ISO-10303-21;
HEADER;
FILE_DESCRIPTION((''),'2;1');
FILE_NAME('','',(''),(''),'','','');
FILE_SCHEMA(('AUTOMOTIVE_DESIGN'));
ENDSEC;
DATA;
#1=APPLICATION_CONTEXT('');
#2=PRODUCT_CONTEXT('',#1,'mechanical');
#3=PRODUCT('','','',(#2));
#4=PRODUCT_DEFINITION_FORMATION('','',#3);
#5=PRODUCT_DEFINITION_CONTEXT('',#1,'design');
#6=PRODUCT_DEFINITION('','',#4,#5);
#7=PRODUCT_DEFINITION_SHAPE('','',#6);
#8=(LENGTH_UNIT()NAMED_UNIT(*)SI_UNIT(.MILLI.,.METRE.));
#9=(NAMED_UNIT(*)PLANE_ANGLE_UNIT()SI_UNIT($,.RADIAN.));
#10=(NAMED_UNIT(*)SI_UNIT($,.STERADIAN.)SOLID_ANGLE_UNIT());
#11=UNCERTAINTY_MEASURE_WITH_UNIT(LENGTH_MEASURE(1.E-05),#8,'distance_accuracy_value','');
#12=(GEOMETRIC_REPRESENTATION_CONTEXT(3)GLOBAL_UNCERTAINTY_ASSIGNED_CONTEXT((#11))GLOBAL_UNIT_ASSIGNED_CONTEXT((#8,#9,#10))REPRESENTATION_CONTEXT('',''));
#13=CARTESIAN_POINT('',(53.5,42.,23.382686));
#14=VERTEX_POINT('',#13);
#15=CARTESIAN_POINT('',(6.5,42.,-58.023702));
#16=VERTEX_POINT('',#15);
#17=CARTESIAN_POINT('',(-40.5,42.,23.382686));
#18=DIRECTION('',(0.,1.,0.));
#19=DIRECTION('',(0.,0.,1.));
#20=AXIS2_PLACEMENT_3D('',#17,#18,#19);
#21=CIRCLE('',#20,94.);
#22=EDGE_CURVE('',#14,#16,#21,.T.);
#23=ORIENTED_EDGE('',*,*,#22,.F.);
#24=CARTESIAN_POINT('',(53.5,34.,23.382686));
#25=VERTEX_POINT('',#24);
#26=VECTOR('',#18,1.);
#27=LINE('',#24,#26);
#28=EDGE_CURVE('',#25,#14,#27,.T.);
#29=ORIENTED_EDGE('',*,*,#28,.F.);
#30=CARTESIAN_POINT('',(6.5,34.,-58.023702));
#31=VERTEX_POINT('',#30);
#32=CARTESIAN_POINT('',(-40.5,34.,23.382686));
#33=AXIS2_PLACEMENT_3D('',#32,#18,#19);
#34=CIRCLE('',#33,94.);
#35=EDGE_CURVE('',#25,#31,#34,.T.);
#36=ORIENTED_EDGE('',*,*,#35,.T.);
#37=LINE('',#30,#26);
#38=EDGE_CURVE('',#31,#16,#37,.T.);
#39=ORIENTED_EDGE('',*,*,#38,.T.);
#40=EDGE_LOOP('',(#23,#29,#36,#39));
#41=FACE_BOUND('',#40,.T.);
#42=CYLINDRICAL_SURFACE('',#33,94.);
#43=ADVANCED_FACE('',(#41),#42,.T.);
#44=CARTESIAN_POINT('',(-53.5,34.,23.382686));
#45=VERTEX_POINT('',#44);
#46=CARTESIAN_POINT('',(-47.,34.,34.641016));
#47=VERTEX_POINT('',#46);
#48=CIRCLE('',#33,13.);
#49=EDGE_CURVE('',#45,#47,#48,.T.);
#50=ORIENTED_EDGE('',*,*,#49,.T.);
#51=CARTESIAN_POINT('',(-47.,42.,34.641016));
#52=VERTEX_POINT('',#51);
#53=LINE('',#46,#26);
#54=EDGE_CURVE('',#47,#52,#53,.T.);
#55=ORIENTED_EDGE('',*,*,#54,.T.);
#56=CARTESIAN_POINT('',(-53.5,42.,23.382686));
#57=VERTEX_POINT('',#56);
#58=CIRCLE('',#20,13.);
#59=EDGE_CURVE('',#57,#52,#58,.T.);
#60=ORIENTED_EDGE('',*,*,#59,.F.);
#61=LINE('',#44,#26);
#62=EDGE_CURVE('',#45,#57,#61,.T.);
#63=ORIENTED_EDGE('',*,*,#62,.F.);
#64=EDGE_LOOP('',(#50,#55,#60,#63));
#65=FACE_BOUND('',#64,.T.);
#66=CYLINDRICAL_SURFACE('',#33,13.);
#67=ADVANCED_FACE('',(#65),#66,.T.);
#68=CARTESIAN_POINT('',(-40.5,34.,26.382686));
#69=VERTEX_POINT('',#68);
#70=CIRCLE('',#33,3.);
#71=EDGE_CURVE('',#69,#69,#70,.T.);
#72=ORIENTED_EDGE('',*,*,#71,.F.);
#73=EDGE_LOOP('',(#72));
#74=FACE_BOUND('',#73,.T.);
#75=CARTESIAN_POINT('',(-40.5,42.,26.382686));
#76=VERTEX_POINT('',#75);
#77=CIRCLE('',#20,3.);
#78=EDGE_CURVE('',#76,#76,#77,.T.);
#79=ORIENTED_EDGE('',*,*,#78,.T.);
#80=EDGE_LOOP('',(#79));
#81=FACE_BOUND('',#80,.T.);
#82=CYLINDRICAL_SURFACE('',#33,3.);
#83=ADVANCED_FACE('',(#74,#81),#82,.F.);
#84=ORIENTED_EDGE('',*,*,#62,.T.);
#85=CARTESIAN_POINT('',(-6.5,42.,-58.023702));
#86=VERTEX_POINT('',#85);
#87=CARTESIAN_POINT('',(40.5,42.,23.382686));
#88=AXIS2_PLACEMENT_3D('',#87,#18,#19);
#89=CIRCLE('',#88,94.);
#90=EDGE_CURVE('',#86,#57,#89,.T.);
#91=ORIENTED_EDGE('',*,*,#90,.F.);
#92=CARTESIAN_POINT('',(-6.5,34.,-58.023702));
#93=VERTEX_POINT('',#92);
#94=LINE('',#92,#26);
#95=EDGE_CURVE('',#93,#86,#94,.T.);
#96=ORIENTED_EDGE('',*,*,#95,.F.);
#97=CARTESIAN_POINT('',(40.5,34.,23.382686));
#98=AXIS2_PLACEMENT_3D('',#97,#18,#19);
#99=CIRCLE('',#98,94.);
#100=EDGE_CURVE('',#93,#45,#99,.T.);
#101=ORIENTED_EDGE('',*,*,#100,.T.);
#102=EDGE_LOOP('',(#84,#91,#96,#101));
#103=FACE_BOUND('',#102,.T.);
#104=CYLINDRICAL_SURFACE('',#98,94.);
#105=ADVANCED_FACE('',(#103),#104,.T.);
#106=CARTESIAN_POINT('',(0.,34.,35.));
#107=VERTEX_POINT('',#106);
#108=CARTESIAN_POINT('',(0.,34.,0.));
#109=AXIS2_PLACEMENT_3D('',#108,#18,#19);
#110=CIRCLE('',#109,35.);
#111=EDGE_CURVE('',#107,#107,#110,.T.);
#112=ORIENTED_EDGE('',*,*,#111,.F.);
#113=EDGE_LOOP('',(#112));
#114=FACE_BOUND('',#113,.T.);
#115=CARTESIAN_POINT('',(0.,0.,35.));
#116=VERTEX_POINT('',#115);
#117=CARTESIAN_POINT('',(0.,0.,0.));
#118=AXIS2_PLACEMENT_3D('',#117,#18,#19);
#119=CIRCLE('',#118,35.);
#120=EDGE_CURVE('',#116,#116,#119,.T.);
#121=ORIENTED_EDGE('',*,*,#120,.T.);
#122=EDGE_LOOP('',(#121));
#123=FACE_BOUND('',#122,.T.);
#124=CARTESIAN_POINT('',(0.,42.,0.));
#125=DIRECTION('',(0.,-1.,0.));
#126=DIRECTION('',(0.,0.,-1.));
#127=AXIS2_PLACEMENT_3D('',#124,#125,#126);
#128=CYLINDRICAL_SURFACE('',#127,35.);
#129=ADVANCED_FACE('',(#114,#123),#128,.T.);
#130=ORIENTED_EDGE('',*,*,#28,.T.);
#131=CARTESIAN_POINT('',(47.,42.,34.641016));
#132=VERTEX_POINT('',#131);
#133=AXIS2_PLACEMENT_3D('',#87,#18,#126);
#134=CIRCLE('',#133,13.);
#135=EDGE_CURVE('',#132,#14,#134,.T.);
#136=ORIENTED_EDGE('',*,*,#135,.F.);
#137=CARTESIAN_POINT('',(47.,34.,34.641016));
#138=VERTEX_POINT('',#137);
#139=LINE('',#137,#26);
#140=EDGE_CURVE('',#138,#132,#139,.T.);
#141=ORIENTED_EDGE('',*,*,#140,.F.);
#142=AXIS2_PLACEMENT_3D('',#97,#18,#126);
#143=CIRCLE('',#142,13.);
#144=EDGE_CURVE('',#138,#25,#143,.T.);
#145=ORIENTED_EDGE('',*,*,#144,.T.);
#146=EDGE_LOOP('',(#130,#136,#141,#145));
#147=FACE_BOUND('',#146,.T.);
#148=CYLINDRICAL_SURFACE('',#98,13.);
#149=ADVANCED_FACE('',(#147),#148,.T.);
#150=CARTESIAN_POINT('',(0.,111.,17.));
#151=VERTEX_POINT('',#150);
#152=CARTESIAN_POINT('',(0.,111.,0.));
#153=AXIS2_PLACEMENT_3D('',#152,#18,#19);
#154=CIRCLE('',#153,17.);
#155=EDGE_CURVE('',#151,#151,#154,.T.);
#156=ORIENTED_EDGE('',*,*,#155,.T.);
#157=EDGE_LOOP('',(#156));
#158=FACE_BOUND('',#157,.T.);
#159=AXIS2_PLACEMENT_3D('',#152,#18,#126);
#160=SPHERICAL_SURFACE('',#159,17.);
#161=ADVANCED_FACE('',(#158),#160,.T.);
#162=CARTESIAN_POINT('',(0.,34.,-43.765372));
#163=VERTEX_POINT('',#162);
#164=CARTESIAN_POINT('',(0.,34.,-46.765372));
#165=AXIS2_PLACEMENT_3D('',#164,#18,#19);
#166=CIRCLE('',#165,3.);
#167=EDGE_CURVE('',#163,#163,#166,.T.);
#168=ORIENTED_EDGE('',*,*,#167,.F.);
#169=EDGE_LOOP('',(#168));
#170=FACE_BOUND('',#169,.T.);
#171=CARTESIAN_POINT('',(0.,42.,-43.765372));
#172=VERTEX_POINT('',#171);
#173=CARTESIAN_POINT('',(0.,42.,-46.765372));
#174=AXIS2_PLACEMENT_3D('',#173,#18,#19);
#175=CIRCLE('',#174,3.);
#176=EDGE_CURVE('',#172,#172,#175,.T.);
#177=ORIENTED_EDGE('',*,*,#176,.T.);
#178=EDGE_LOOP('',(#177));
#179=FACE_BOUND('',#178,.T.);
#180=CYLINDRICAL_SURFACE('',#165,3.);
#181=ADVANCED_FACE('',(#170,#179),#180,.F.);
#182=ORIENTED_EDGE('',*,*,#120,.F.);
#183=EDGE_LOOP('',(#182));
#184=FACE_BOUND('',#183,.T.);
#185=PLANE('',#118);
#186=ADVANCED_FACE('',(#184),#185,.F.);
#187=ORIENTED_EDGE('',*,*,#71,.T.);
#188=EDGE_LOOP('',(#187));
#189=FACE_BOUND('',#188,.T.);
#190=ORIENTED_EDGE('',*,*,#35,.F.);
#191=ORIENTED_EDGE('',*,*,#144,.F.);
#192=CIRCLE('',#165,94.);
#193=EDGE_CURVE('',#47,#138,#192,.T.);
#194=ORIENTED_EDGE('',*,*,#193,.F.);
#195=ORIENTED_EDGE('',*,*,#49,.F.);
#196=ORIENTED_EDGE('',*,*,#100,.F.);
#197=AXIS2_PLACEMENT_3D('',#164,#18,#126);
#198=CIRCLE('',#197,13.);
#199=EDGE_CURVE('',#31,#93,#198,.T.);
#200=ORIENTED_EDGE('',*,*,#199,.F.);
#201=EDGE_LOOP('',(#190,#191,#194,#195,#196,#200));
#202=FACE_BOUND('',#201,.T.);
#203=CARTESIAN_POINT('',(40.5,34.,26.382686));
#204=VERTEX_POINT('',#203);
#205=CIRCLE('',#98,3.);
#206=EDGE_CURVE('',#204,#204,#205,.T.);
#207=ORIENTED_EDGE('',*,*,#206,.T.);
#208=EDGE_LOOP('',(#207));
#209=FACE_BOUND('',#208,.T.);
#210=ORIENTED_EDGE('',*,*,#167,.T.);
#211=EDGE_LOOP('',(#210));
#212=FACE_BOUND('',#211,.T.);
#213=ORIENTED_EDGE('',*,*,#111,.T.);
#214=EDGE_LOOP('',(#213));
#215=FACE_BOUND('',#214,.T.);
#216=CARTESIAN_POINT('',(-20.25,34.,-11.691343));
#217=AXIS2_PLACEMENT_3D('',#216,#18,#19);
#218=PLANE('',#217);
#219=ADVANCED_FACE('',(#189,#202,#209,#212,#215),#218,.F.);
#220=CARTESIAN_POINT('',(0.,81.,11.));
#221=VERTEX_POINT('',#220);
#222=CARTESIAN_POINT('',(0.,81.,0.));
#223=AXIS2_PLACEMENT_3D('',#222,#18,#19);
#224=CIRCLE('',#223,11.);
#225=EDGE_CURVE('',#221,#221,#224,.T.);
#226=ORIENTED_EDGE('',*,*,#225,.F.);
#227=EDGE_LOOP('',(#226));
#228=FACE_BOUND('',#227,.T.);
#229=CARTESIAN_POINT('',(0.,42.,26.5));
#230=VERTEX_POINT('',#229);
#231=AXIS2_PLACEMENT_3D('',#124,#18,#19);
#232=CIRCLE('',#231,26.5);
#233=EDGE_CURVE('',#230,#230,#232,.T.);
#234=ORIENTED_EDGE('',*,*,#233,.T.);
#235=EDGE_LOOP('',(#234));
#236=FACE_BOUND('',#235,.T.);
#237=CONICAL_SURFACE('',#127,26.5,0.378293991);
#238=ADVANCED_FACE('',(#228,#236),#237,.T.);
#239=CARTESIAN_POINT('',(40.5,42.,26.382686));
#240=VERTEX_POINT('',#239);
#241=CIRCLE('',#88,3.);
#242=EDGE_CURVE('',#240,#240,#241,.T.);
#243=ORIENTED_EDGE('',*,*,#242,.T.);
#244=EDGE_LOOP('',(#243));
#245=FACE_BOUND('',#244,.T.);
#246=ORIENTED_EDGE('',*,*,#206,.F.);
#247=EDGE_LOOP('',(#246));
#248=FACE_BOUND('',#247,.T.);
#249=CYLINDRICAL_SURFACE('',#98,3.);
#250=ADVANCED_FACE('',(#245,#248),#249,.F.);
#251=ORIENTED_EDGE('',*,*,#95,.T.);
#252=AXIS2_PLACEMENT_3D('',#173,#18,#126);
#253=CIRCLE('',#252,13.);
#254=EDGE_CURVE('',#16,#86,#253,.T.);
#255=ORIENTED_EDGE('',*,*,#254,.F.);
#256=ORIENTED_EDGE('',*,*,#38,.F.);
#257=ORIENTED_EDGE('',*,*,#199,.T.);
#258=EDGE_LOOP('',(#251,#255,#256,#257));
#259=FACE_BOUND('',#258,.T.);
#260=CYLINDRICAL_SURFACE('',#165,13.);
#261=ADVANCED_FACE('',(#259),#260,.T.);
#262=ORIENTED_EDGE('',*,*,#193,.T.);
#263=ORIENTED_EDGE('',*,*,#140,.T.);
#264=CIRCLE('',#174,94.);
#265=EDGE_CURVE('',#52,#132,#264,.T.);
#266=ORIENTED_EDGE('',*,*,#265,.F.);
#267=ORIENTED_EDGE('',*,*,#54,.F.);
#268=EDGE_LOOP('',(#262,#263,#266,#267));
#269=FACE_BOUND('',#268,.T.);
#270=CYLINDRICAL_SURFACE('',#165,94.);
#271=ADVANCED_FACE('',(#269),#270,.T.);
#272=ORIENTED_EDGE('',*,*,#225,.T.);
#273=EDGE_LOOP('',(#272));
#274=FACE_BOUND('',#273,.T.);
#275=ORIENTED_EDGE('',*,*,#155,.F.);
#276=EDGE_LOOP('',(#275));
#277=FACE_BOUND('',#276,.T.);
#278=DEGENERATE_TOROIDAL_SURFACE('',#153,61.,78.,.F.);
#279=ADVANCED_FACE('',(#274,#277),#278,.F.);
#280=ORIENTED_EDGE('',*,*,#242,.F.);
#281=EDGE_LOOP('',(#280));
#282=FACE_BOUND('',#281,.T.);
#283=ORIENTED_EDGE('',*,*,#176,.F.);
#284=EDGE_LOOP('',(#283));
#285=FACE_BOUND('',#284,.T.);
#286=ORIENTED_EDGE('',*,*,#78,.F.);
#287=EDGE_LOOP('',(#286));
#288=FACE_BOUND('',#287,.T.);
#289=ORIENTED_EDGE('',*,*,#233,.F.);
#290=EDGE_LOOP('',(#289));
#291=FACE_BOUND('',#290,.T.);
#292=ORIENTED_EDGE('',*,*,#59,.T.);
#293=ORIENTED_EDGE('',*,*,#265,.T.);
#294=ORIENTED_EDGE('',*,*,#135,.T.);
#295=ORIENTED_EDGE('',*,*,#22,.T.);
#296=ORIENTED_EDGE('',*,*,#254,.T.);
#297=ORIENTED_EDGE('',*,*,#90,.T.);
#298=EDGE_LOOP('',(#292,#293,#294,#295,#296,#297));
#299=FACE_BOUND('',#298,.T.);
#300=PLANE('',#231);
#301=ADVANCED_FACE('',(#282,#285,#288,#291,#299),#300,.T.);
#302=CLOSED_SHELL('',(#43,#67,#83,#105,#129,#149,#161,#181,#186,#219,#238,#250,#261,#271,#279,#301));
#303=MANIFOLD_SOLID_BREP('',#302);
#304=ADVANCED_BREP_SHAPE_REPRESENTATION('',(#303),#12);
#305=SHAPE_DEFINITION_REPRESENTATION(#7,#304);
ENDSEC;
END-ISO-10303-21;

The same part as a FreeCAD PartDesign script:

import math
import FreeCAD as App
import Part
import Sketcher

doc = App.newDocument("Part")
params = doc.addObject("Spreadsheet::Sheet", "Params")
for row, (alias, value) in enumerate([
    ("sketch1_diameter", "70 mm"),
    ("pad1_length", "42 mm"),
    ("sketch2_diameter", "6 mm"),
    ("sketch2_radius", "94 mm"),
    ("sketch2_radius2", "13 mm"),
    ("pad2_length", "8 mm"),
    ("sketch3_radius", "78 mm"),
    ("sketch3_radius2", "17 mm"),
    ("sketch3_width", "86 mm"),
    ("sketch3_height", "26.5 mm"),
    ("revolution_angle", "360 deg"),
], start=1):
    params.set(f"A{row}", alias)
    params.set(f"B{row}", "=" + value)
    params.setAlias(f"B{row}", alias)

body = doc.addObject("PartDesign::Body", "Body")

sketch1 = body.newObject("Sketcher::SketchObject", "Sketch")
sketch1.AttachmentSupport = (doc.getObject("XZ_Plane"), [""])
sketch1.MapMode = "FlatFace"
sketch1.addGeometry(Part.Circle(App.Vector(0, 0, 0), App.Vector(0, 0, 1), 35), False)
sketch1.addConstraint([
    Sketcher.Constraint("Coincident", 0, 3, -1, 1),
    Sketcher.Constraint("Diameter", 0, 70.0),
])
sketch1.setExpression("Constraints[1]", "Params.sketch1_diameter")
pad1 = body.newObject("PartDesign::Pad", "Pad")
pad1.Profile = sketch1
pad1.setExpression("Length", "Params.pad1_length")
pad1.Reversed = True

sketch2 = body.newObject("Sketcher::SketchObject", "Sketch001")
sketch2.AttachmentSupport = (doc.getObject("XZ_Plane"), [""])
sketch2.MapMode = "FlatFace"
sketch2.AttachmentOffset = App.Placement(App.Vector(0, 0, -42), App.Rotation())
sketch2.addGeometry([
    Part.ArcOfCircle(Part.Circle(App.Vector(0, -46.8, 0), App.Vector(0, 0, 1), 94), math.radians(60), math.radians(120)),
    Part.ArcOfCircle(Part.Circle(App.Vector(40.5, 23.4, 0), App.Vector(0, 0, 1), 13), math.radians(0), math.radians(60)),
    Part.ArcOfCircle(Part.Circle(App.Vector(-40.5, 23.4, 0), App.Vector(0, 0, 1), 94), math.radians(-60), math.radians(0)),
    Part.ArcOfCircle(Part.Circle(App.Vector(0, -46.8, 0), App.Vector(0, 0, 1), 13), math.radians(-120), math.radians(-60)),
    Part.ArcOfCircle(Part.Circle(App.Vector(40.5, 23.4, 0), App.Vector(0, 0, 1), 94), math.radians(180), math.radians(240)),
    Part.ArcOfCircle(Part.Circle(App.Vector(-40.5, 23.4, 0), App.Vector(0, 0, 1), 13), math.radians(120), math.radians(180)),
    Part.Circle(App.Vector(-40.5, 23.4, 0), App.Vector(0, 0, 1), 3),
    Part.Circle(App.Vector(40.5, 23.4, 0), App.Vector(0, 0, 1), 3),
    Part.Circle(App.Vector(0, -46.8, 0), App.Vector(0, 0, 1), 3),
], False)
sketch2.addConstraint([
    Sketcher.Constraint("Tangent", 0, 1, 1, 2),
    Sketcher.Constraint("Tangent", 1, 1, 2, 2),
    Sketcher.Constraint("Tangent", 2, 1, 3, 2),
    Sketcher.Constraint("Tangent", 3, 1, 4, 2),
    Sketcher.Constraint("Tangent", 4, 1, 5, 2),
    Sketcher.Constraint("Tangent", 5, 1, 0, 2),
    Sketcher.Constraint("Coincident", 3, 3, 0, 3),
    Sketcher.Constraint("Coincident", 4, 3, 1, 3),
    Sketcher.Constraint("Coincident", 6, 3, 2, 3),
    Sketcher.Constraint("Coincident", 7, 3, 1, 3),
    Sketcher.Constraint("Coincident", 8, 3, 0, 3),
    Sketcher.Constraint("Equal", 0, 2),
    Sketcher.Constraint("Equal", 1, 3),
    Sketcher.Constraint("Equal", 3, 5),
    Sketcher.Constraint("Equal", 6, 7),
    Sketcher.Constraint("Equal", 7, 8),
    Sketcher.Constraint("Symmetric", 1, 3, 2, 3, -2),
    Sketcher.Constraint("Diameter", 6, 6.0),
    Sketcher.Constraint("Radius", 0, 94.0),
    Sketcher.Constraint("Radius", 1, 13.0),
    Sketcher.Constraint("DistanceY", 0, 3, -1, 1, 46.765372),
])
sketch2.setExpression("Constraints[17]", "Params.sketch2_diameter")
sketch2.setExpression("Constraints[18]", "Params.sketch2_radius")
sketch2.setExpression("Constraints[19]", "Params.sketch2_radius2")
pad2 = body.newObject("PartDesign::Pad", "Pad001")
pad2.Profile = sketch2
pad2.setExpression("Length", "Params.pad2_length")

sketch3 = body.newObject("Sketcher::SketchObject", "Sketch002")
sketch3.AttachmentSupport = (doc.getObject("YZ_Plane"), [""])
sketch3.MapMode = "FlatFace"
sketch3.addGeometry([
    Part.LineSegment(App.Vector(42, -26, 0), App.Vector(81, -11, 0)),
    Part.ArcOfCircle(Part.Circle(App.Vector(111, 61, 0), App.Vector(0, 0, 1), 78), math.radians(-113), math.radians(-90)),
    Part.ArcOfCircle(Part.Circle(App.Vector(111, 0, 0), App.Vector(0, 0, 1), 17), math.radians(-90), math.radians(0)),
    Part.LineSegment(App.Vector(128, 0, 0), App.Vector(42, 0, 0)),
    Part.LineSegment(App.Vector(42, 0, 0), App.Vector(42, -26, 0)),
], False)
sketch3.addConstraint([
    Sketcher.Constraint("Coincident", 0, 2, 1, 1),
    Sketcher.Constraint("Tangent", 1, 2, 2, 1),
    Sketcher.Constraint("Coincident", 2, 2, 3, 1),
    Sketcher.Constraint("Coincident", 3, 2, 4, 1),
    Sketcher.Constraint("Coincident", 4, 2, 0, 1),
    Sketcher.Constraint("Horizontal", 3),
    Sketcher.Constraint("Vertical", 4),
    Sketcher.Constraint("PointOnObject", 2, 3, -1),
    Sketcher.Constraint("PointOnObject", 2, 2, -1),
    Sketcher.Constraint("Vertical", 1, 3, 2, 3),
    Sketcher.Constraint("Radius", 1, 78.0),
    Sketcher.Constraint("Radius", 2, 17.0),
    Sketcher.Constraint("DistanceX", 3, 2, 3, 1, 86.0),
    Sketcher.Constraint("DistanceY", 4, 2, 4, 1, 26.5),
    Sketcher.Constraint("DistanceX", -1, 1, 1, 3, 111.0),
    Sketcher.Constraint("DistanceX", -1, 1, 0, 2, 81.0),
])
sketch3.setExpression("Constraints[10]", "Params.sketch3_radius")
sketch3.setExpression("Constraints[11]", "Params.sketch3_radius2")
sketch3.setExpression("Constraints[12]", "Params.sketch3_width")
sketch3.setExpression("Constraints[13]", "Params.sketch3_height")
revolution = body.newObject("PartDesign::Revolution", "Revolution")
revolution.Profile = sketch3
revolution.ReferenceAxis = (sketch3, ["H_Axis"])
revolution.setExpression("Angle", "Params.revolution_angle")

doc.recompute()
